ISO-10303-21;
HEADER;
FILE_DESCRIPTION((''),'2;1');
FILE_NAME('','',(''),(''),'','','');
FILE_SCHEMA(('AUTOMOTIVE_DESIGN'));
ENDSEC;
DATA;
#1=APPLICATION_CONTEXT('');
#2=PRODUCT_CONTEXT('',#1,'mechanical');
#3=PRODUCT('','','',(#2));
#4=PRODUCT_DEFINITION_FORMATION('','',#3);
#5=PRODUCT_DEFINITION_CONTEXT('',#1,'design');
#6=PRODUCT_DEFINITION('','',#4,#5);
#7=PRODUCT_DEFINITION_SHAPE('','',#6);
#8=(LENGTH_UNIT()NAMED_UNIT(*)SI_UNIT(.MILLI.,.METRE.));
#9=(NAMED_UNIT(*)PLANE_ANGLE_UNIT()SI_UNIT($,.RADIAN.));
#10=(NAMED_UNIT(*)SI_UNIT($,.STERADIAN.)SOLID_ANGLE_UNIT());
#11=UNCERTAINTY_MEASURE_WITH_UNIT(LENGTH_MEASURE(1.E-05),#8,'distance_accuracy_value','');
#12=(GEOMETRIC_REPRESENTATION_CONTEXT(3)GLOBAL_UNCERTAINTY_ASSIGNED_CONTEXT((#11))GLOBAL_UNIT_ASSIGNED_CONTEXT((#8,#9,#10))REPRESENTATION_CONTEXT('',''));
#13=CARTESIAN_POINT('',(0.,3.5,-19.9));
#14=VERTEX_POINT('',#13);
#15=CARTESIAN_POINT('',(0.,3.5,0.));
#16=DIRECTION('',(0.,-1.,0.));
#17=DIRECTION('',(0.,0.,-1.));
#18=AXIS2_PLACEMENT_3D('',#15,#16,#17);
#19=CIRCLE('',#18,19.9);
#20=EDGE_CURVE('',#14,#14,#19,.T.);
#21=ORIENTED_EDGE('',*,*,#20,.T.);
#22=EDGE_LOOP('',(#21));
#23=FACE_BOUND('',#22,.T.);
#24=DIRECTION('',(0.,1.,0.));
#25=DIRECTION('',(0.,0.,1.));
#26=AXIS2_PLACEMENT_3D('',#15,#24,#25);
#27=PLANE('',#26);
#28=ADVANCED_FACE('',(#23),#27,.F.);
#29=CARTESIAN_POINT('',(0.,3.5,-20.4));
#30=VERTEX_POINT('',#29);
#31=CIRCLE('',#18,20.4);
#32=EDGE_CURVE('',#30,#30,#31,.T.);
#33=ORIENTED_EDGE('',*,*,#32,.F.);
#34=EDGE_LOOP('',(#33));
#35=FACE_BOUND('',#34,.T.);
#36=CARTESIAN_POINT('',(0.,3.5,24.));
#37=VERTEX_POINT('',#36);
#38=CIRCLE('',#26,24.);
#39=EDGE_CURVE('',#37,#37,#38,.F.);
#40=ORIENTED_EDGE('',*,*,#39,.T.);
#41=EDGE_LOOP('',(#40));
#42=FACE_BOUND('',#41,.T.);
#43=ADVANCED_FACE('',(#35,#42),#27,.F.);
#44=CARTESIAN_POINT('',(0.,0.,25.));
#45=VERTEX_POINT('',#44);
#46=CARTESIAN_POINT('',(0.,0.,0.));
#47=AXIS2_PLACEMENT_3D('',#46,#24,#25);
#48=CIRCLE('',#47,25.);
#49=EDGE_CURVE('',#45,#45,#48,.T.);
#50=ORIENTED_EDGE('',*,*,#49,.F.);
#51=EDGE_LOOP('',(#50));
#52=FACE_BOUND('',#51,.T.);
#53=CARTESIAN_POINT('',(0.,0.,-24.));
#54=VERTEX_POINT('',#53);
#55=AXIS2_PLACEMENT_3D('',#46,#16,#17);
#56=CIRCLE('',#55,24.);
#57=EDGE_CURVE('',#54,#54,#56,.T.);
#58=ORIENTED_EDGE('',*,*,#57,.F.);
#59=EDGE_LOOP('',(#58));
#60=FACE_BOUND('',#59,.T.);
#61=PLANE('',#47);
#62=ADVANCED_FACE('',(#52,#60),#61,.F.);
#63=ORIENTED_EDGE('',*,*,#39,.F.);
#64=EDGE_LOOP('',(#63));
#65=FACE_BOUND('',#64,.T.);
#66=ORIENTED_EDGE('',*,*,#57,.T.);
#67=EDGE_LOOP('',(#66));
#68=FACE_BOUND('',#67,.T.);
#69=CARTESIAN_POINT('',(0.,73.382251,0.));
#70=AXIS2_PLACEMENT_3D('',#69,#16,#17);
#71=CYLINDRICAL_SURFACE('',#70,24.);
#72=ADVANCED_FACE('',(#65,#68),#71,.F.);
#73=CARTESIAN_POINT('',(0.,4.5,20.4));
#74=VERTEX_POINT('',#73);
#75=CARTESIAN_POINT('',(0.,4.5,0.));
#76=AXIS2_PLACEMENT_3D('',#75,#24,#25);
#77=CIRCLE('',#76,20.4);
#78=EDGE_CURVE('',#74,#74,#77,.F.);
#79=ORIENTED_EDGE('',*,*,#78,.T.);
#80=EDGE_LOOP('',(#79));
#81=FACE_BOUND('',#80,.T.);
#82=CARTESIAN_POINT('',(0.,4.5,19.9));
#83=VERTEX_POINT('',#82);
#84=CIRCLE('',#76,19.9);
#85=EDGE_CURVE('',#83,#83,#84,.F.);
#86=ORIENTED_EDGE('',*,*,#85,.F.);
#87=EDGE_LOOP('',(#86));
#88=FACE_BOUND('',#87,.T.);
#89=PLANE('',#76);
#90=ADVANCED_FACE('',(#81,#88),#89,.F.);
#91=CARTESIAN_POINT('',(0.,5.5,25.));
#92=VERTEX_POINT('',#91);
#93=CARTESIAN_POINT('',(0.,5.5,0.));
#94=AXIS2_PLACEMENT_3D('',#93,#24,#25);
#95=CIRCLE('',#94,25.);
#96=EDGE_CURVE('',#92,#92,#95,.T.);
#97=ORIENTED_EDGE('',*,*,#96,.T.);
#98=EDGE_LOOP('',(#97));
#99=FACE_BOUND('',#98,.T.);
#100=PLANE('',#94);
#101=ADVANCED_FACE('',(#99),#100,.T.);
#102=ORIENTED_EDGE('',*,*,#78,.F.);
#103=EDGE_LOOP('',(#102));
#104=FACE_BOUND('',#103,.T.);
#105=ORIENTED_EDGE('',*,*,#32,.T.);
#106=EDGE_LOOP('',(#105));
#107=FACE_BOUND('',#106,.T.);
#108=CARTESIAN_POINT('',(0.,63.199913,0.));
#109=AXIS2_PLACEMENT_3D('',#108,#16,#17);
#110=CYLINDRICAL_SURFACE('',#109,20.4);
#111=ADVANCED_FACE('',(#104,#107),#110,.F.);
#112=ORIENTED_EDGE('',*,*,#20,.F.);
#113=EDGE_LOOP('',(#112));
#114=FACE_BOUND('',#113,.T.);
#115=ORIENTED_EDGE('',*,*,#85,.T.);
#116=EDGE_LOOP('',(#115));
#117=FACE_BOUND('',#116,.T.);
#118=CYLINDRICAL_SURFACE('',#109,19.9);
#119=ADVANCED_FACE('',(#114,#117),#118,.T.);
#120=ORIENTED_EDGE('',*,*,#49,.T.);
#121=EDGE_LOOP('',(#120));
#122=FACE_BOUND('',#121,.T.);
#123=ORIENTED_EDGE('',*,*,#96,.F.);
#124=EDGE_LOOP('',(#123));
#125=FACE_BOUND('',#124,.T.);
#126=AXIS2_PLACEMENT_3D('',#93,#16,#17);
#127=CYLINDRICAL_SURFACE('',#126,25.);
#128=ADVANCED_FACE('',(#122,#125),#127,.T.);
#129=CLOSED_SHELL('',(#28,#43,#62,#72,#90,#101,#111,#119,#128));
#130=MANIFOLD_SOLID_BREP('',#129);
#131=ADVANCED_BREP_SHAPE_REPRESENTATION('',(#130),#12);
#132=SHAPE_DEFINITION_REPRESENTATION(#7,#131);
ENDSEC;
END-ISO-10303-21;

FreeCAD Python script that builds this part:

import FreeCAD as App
import Part
import Sketcher

V = App.Vector
Q = App.Units.Quantity

doc = App.newDocument("Part")
params = doc.addObject("Spreadsheet::Sheet", "Params")
for row, (alias, value) in enumerate([
    ("sketch1_diameter", "50 mm"),
    ("pad1_length", "5.5 mm"),
    ("sketch2_diameter", "48 mm"),
    ("pocket1_length", "3.5 mm"),
    ("sketch3_diameter", "40.8 mm"),
    ("sketch3_diameter2", "39.8 mm"),
    ("pocket2_length", "1 mm"),
], start=1):
    params.set(f"A{row}", alias)
    params.set(f"B{row}", "=" + value)
    params.setAlias(f"B{row}", alias)

body = doc.addObject("PartDesign::Body", "Body")

# Sketch on XZ plane
sketch1 = doc.addObject("Sketcher::SketchObject", "Sketch")
body.addObject(sketch1)
sketch1.AttachmentSupport = (doc.XZ_Plane, [""])
sketch1.MapMode = "FlatFace"
sketch1.addGeometry(Part.Circle(V(0, 0, 0), V(0, 0, 1), 25), False)
sketch1.addConstraint([
    Sketcher.Constraint("Coincident", 0, 3, -1, 1),
    Sketcher.Constraint("Diameter", 0, Q("50 mm")),
])
sketch1.setExpression("Constraints[1]", "Params.sketch1_diameter")
pad1 = doc.addObject("PartDesign::Pad", "Pad")
body.addObject(pad1)
pad1.Profile = sketch1
pad1.setExpression("Length", "Params.pad1_length")
pad1.Reversed = True

# Sketch on XZ plane
sketch2 = doc.addObject("Sketcher::SketchObject", "Sketch001")
body.addObject(sketch2)
sketch2.AttachmentSupport = (doc.XZ_Plane, [""])
sketch2.MapMode = "FlatFace"
sketch2.addGeometry(Part.Circle(V(0, 0, 0), V(0, 0, 1), 24), False)
sketch2.addConstraint([
    Sketcher.Constraint("Coincident", 0, 3, -1, 1),
    Sketcher.Constraint("Diameter", 0, Q("48 mm")),
])
sketch2.setExpression("Constraints[1]", "Params.sketch2_diameter")
pocket1 = doc.addObject("PartDesign::Pocket", "Pocket")
body.addObject(pocket1)
pocket1.Profile = sketch2
pocket1.setExpression("Length", "Params.pocket1_length")

# Sketch on XZ plane
sketch3 = doc.addObject("Sketcher::SketchObject", "Sketch002")
body.addObject(sketch3)
sketch3.AttachmentSupport = (doc.XZ_Plane, [""])
sketch3.MapMode = "FlatFace"
sketch3.AttachmentOffset = App.Placement(V(0, 0, -3.5), App.Rotation())
sketch3.addGeometry([
    Part.Circle(V(0, 0, 0), V(0, 0, 1), 20),
    Part.Circle(V(0, 0, 0), V(0, 0, 1), 20),
], False)
sketch3.addConstraint([
    Sketcher.Constraint("Coincident", 0, 3, -1, 1),
    Sketcher.Constraint("Coincident", 1, 3, -1, 1),
    Sketcher.Constraint("Diameter", 0, Q("40.8 mm")),
    Sketcher.Constraint("Diameter", 1, Q("39.8 mm")),
])
sketch3.setExpression("Constraints[2]", "Params.sketch3_diameter")
sketch3.setExpression("Constraints[3]", "Params.sketch3_diameter2")
pocket2 = doc.addObject("PartDesign::Pocket", "Pocket001")
body.addObject(pocket2)
pocket2.Profile = sketch3
pocket2.setExpression("Length", "Params.pocket2_length")

doc.recompute()
